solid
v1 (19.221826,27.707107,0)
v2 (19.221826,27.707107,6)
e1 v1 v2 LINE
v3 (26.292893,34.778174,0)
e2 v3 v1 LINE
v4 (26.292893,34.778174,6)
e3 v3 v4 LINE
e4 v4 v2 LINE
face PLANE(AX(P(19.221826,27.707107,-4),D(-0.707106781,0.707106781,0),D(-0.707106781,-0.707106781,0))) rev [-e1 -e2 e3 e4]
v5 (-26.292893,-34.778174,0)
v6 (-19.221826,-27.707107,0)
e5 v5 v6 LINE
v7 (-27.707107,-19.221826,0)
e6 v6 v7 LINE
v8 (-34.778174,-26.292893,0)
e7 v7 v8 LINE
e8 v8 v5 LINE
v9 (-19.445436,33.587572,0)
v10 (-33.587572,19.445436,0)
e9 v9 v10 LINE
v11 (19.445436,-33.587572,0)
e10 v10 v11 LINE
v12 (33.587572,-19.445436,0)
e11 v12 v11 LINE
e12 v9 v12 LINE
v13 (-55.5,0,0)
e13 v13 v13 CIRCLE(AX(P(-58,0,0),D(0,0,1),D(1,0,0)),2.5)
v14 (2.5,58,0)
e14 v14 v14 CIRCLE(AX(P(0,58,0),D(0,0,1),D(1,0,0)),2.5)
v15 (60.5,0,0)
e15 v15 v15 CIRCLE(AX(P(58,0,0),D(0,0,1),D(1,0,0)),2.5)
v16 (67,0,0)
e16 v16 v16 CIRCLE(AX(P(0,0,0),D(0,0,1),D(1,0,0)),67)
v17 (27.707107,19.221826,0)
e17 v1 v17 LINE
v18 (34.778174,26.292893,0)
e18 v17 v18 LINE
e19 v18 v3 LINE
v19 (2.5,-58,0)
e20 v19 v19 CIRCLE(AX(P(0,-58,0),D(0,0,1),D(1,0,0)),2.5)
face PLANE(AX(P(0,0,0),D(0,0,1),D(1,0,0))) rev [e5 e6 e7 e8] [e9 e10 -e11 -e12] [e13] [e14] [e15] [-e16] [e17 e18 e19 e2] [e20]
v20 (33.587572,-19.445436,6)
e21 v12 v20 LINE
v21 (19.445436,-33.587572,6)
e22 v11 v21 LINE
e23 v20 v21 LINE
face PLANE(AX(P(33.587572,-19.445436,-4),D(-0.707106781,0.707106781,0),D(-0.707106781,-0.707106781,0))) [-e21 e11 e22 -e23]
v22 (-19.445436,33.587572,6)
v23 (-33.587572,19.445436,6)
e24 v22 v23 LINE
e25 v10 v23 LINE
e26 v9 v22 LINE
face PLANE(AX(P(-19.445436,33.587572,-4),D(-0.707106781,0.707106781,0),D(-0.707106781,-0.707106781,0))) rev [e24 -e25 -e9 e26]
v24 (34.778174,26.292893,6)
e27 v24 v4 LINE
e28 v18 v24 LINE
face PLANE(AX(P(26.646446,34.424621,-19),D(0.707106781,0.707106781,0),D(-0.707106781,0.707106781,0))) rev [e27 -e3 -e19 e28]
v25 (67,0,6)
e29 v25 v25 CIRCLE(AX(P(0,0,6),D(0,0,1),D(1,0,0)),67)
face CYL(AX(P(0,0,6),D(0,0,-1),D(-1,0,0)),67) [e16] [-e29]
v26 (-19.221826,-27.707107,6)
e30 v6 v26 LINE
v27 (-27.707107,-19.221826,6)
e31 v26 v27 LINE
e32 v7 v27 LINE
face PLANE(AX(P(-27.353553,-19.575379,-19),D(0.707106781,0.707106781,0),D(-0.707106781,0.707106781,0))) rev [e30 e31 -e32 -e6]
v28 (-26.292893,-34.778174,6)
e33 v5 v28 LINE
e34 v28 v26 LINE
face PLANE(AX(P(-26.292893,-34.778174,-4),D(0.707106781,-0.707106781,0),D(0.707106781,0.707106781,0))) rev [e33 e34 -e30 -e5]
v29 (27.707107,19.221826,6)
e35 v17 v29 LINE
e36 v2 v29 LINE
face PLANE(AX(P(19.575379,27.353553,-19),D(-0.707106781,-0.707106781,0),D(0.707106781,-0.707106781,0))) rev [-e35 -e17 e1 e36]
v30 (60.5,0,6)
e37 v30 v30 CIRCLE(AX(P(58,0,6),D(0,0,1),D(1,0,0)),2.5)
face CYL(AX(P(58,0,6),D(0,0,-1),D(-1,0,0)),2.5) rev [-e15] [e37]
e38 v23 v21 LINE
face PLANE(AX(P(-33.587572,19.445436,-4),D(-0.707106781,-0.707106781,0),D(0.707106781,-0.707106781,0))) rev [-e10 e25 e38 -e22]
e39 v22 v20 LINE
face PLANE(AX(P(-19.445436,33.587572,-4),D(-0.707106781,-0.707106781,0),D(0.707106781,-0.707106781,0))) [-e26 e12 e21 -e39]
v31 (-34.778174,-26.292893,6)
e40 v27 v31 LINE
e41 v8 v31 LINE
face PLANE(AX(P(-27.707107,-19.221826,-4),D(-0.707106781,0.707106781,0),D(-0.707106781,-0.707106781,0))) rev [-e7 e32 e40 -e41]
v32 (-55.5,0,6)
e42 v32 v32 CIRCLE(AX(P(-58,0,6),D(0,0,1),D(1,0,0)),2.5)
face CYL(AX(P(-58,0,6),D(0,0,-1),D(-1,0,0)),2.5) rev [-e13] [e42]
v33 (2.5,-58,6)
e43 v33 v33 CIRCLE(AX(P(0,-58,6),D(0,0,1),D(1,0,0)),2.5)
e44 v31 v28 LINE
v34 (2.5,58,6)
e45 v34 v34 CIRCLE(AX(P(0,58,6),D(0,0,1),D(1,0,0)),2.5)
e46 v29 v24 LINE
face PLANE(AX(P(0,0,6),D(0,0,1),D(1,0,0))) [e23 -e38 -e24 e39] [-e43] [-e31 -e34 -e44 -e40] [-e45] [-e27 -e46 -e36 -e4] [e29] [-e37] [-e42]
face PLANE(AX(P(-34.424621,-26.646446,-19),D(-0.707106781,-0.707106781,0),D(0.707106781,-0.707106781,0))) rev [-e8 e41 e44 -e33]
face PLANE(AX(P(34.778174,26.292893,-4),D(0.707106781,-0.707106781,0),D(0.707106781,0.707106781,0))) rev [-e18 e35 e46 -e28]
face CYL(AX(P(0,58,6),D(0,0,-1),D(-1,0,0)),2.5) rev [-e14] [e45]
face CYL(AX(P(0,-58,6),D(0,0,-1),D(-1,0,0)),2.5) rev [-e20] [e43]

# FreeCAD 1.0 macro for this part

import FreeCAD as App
import Part
import Sketcher

V = App.Vector
Q = App.Units.Quantity

doc = App.newDocument("Part")
body = doc.addObject("PartDesign::Body", "Body")

sketch1 = body.newObject("Sketcher::SketchObject", "Sketch")
sketch1.AttachmentSupport = (doc.getObject("XY_Plane"), [""])
sketch1.MapMode = "FlatFace"
sketch1.addGeometry([
    Part.Circle(V(0, 0, 0), V(0, 0, 1), 67),
    Part.Circle(V(0, -58, 0), V(0, 0, 1), 2.5),
    Part.Circle(V(-58, 0, 0), V(0, 0, 1), 2.5),
    Part.Circle(V(58, 0, 0), V(0, 0, 1), 2.5),
    Part.Circle(V(0, 58, 0), V(0, 0, 1), 2.5),
], False)
sketch1.addConstraint([
    Sketcher.Constraint("Coincident", 0, 3, -1, 1),
    Sketcher.Constraint("Equal", 1, 2),
    Sketcher.Constraint("Equal", 2, 3),
    Sketcher.Constraint("Equal", 3, 4),
    Sketcher.Constraint("Symmetric", 2, 3, 3, 3, -1, 1),
    Sketcher.Constraint("Symmetric", 1, 3, 4, 3, -1, 1),
    Sketcher.Constraint("PointOnObject", 1, 3, -2),
    Sketcher.Constraint("PointOnObject", 2, 3, -1),
    Sketcher.Constraint("Diameter", 0, Q("134 mm")),
    Sketcher.Constraint("Diameter", 1, Q("5 mm")),
    Sketcher.Constraint("DistanceY", 1, 3, -1, 1, Q("58 mm")),
    Sketcher.Constraint("DistanceX", 2, 3, -1, 1, Q("58 mm")),
])
pad1 = body.newObject("PartDesign::Pad", "Pad")
pad1.Profile = sketch1
pad1.Length = 6

sketch2 = body.newObject("Sketcher::SketchObject", "Sketch001")
sketch2.AttachmentSupport = (doc.getObject("XY_Plane"), [""])
sketch2.MapMode = "FlatFace"
sketch2.AttachmentOffset = App.Placement(V(0, 0, 6), App.Rotation())
sketch2.addGeometry([
    Part.LineSegment(V(-27, -20, 0), V(-34, -27, 0)),
    Part.LineSegment(V(-34, -27, 0), V(-27, -34, 0)),
    Part.LineSegment(V(-27, -34, 0), V(-20, -27, 0)),
    Part.LineSegment(V(-20, -27, 0), V(-27, -20, 0)),
    Part.LineSegment(V(20, 27, 0), V(27, 20, 0)),
    Part.LineSegment(V(27, 20, 0), V(34, 27, 0)),
    Part.LineSegment(V(34, 27, 0), V(27, 34, 0)),
    Part.LineSegment(V(27, 34, 0), V(20, 27, 0)),
], False)
sketch2.addConstraint([
    Sketcher.Constraint("Coincident", 0, 2, 1, 1),
    Sketcher.Constraint("Coincident", 1, 2, 2, 1),
    Sketcher.Constraint("Coincident", 2, 2, 3, 1),
    Sketcher.Constraint("Coincident", 3, 2, 0, 1),
    Sketcher.Constraint("Coincident", 4, 2, 5, 1),
    Sketcher.Constraint("Coincident", 5, 2, 6, 1),
    Sketcher.Constraint("Coincident", 6, 2, 7, 1),
    Sketcher.Constraint("Coincident", 7, 2, 4, 1),
    Sketcher.Constraint("Symmetric", 3, 2, 4, 2, -1, 1),
    Sketcher.Constraint("Symmetric", 0, 2, 5, 2, -1, 1),
    Sketcher.Constraint("Symmetric", 1, 2, 6, 2, -1, 1),
    Sketcher.Constraint("Symmetric", 2, 2, 7, 2, -1, 1),
    Sketcher.Constraint("Perpendicular", 0, 1),
    Sketcher.Constraint("Perpendicular", 1, 2),
    Sketcher.Constraint("Perpendicular", 2, 3),
    Sketcher.Constraint("Angle", 0, Q("-135.000004 deg")),
    Sketcher.Constraint("Distance", 0, Q("10 mm")),
    Sketcher.Constraint("Distance", 1, Q("11 mm")),
    Sketcher.Constraint("DistanceX", 1, 2, 4, 2, Q("54.000001 mm")),
    Sketcher.Constraint("DistanceY", 1, 2, 4, 2, Q("53.999999 mm")),
])
pocket1 = body.newObject("PartDesign::Pocket", "Pocket")
pocket1.Profile = sketch2
pocket1.Type = "ThroughAll"
pocket1.Midplane = True

sketch3 = body.newObject("Sketcher::SketchObject", "Sketch002")
sketch3.AttachmentSupport = (doc.getObject("XY_Plane"), [""])
sketch3.MapMode = "FlatFace"
sketch3.AttachmentOffset = App.Placement(V(0, 0, 6), App.Rotation())
sketch3.addGeometry([
    Part.LineSegment(V(34, -19, 0), V(-19, 34, 0)),
    Part.LineSegment(V(-19, 34, 0), V(-34, 19, 0)),
    Part.LineSegment(V(-34, 19, 0), V(19, -34, 0)),
    Part.LineSegment(V(19, -34, 0), V(34, -19, 0)),
], False)
sketch3.addConstraint([
    Sketcher.Constraint("Coincident", 0, 2, 1, 1),
    Sketcher.Constraint("Coincident", 1, 2, 2, 1),
    Sketcher.Constraint("Coincident", 2, 2, 3, 1),
    Sketcher.Constraint("Coincident", 3, 2, 0, 1),
    Sketcher.Constraint("Symmetric", 0, 2, 2, 2, -1, 1),
    Sketcher.Constraint("Symmetric", 1, 2, 3, 2, -1, 1),
    Sketcher.Constraint("Perpendicular", 0, 1),
    Sketcher.Constraint("Angle", 0, Q("135 deg")),
    Sketcher.Constraint("Distance", 0, Q("75 mm")),
    Sketcher.Constraint("Distance", 1, Q("20 mm")),
])
pocket2 = body.newObject("PartDesign::Pocket", "Pocket001")
pocket2.Profile = sketch3
pocket2.Length = 10

sketch4 = body.newObject("Sketcher::SketchObject", "Sketch003")
sketch4.AttachmentSupport = (doc.getObject("XY_Plane"), [""])
sketch4.MapMode = "FlatFace"
sketch4.AttachmentOffset = App.Placement(V(0, 0, 6), App.Rotation())
sketch4.addGeometry([
    Part.LineSegment(V(-34.78, -26.29, 0), V(-34.42, -26.65, 0)),
    Part.LineSegment(V(-34.42, -26.65, 0), V(-27.35, -19.58, 0)),
    Part.LineSegment(V(-27.35, -19.58, 0), V(-27.71, -19.22, 0)),
    Part.LineSegment(V(-27.71, -19.22, 0), V(-34.78, -26.29, 0)),
    Part.LineSegment(V(-26.65, -34.42, 0), V(-26.29, -34.78, 0)),
    Part.LineSegment(V(-26.29, -34.78, 0), V(-19.22, -27.71, 0)),
    Part.LineSegment(V(-19.22, -27.71, 0), V(-19.58, -27.35, 0)),
    Part.LineSegment(V(-19.58, -27.35, 0), V(-26.65, -34.42, 0)),
    Part.LineSegment(V(27.35, 19.58, 0), V(27.71, 19.22, 0)),
    Part.LineSegment(V(27.71, 19.22, 0), V(34.78, 26.29, 0)),
    Part.LineSegment(V(34.78, 26.29, 0), V(34.42, 26.65, 0)),
    Part.LineSegment(V(34.42, 26.65, 0), V(27.35, 19.58, 0)),
    Part.LineSegment(V(19.58, 27.35, 0), V(26.65, 34.42, 0)),
    Part.LineSegment(V(26.65, 34.42, 0), V(26.29, 34.78, 0)),
    Part.LineSegment(V(26.29, 34.78, 0), V(19.22, 27.71, 0)),
    Part.LineSegment(V(19.22, 27.71, 0), V(19.58, 27.35, 0)),
], False)
sketch4.addConstraint([
    Sketcher.Constraint("Coincident", 0, 2, 1, 1),
    Sketcher.Constraint("Coincident", 1, 2, 2, 1),
    Sketcher.Constraint("Coincident", 2, 2, 3, 1),
    Sketcher.Constraint("Coincident", 3, 2, 0, 1),
    Sketcher.Constraint("Coincident", 4, 2, 5, 1),
    Sketcher.Constraint("Coincident", 5, 2, 6, 1),
    Sketcher.Constraint("Coincident", 6, 2, 7, 1),
    Sketcher.Constraint("Coincident", 7, 2, 4, 1),
    Sketcher.Constraint("Coincident", 8, 2, 9, 1),
    Sketcher.Constraint("Coincident", 9, 2, 10, 1),
    Sketcher.Constraint("Coincident", 10, 2, 11, 1),
    Sketcher.Constraint("Coincident", 11, 2, 8, 1),
    Sketcher.Constraint("Coincident", 12, 2, 13, 1),
    Sketcher.Constraint("Coincident", 13, 2, 14, 1),
    Sketcher.Constraint("Coincident", 14, 2, 15, 1),
    Sketcher.Constraint("Coincident", 15, 2, 12, 1),
    Sketcher.Constraint("Symmetric", 2, 2, 8, 2, -1, 1),
    Sketcher.Constraint("Symmetric", 3, 2, 9, 2, -1, 1),
    Sketcher.Constraint("Symmetric", 0, 2, 10, 2, -1, 1),
    Sketcher.Constraint("Symmetric", 1, 2, 11, 2, -1, 1),
    Sketcher.Constraint("Symmetric", 7, 2, 12, 2, -1, 1),
    Sketcher.Constraint("Symmetric", 4, 2, 13, 2, -1, 1),
    Sketcher.Constraint("Symmetric", 5, 2, 14, 2, -1, 1),
    Sketcher.Constraint("Symmetric", 6, 2, 15, 2, -1, 1),
    Sketcher.Constraint("Perpendicular", 0, 1),
    Sketcher.Constraint("Perpendicular", 1, 2),
    Sketcher.Constraint("Perpendicular", 2, 3),
    Sketcher.Constraint("Perpendicular", 3, 4),
    Sketcher.Constraint("Perpendicular", 4, 5),
    Sketcher.Constraint("Perpendicular", 5, 6),
    Sketcher.Constraint("Perpendicular", 6, 7),
    Sketcher.Constraint("Equal", 2, 4),
    Sketcher.Constraint("Equal", 3, 5),
    Sketcher.Constraint("Angle", 0, Q("-45 deg")),
    Sketcher.Constraint("Distance", 1, Q("10 mm")),
    Sketcher.Constraint("DistanceX", 4, 2, 8, 2, Q("54 mm")),
    Sketcher.Constraint("DistanceY", 4, 2, 8, 2, Q("54 mm")),
    Sketcher.Constraint("Distance", 0, Q("0.499999 mm")),
    Sketcher.Constraint("DistanceX", 0, 2, -1, 1, Q("34.424621 mm")),
    Sketcher.Constraint("DistanceY", 1, 2, -1, 1, Q("19.575379 mm")),
])
pocket3 = body.newObject("PartDesign::Pocket", "Pocket002")
pocket3.Profile = sketch4
pocket3.Length = 10

doc.recompute()
